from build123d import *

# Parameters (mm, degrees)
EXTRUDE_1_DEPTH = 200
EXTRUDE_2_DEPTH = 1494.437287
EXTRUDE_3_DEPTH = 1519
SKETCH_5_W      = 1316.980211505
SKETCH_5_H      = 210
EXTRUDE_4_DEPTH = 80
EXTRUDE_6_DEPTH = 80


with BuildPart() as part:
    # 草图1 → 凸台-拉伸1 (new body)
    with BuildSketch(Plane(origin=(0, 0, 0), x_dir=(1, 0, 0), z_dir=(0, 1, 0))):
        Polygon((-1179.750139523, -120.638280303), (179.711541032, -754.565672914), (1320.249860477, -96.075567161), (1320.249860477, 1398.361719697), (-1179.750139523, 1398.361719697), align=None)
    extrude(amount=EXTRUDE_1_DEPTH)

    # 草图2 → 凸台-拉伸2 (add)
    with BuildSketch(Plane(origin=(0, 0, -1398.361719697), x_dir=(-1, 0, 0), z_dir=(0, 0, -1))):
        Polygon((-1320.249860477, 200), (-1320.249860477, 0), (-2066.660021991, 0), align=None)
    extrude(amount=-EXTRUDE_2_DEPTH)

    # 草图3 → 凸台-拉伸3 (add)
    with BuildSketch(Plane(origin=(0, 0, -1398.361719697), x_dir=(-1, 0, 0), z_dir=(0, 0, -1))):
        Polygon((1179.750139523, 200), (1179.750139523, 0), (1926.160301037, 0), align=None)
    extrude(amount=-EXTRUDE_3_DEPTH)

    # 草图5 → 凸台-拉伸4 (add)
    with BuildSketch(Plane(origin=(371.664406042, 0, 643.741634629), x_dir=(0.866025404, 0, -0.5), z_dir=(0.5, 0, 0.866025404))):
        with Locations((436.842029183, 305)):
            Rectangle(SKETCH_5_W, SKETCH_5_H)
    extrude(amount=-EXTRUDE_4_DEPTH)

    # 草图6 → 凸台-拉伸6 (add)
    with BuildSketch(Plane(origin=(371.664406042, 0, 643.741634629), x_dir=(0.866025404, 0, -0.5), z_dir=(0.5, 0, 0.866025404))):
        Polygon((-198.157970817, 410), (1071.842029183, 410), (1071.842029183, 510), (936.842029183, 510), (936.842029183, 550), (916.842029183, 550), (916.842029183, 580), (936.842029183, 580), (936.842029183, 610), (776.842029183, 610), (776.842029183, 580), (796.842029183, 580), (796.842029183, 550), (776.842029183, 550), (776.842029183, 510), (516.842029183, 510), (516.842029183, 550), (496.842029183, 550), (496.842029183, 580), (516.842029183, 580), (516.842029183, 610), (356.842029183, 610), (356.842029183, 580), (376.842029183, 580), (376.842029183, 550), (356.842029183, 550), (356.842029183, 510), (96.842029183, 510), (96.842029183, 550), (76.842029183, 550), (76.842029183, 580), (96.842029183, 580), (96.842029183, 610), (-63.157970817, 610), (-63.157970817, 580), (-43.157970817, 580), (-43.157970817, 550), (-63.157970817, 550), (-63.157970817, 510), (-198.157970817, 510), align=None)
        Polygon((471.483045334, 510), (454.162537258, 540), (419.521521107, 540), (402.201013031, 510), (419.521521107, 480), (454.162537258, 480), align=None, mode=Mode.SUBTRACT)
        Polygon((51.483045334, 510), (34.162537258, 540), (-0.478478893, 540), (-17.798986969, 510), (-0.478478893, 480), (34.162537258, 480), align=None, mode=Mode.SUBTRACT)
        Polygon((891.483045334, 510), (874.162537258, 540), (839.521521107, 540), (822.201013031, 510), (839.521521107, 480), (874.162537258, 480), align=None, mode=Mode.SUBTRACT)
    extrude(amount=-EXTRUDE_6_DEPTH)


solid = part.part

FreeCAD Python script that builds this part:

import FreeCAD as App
import Part
import Sketcher
from FreeCAD import Vector
Q = App.Units.Quantity


def add_polygon(sketch, points):
    """Adds a closed chain of lines whose ends are joined by coincident constraints."""
    first, n = sketch.GeometryCount, len(points)
    for a, b in zip(points, points[1:] + points[:1]):
        sketch.addGeometry(Part.LineSegment(App.Vector(*a, 0), App.Vector(*b, 0)), False)
    for i in range(n):
        sketch.addConstraint(Sketcher.Constraint("Coincident", first + i, 2, first + (i + 1) % n, 1))

doc = App.newDocument("Part")
body = doc.addObject("PartDesign::Body", "Body")

# Sketch on XZ plane
sketch1 = body.newObject("Sketcher::SketchObject", "Sketch")
sketch1.AttachmentSupport = (doc.getObject("XZ_Plane"), [""])
sketch1.MapMode = "FlatFace"
add_polygon(sketch1, [(-1180, 121), (180, 755), (1320, 96), (1320, -1398), (-1180, -1398)])  # lines 0-4
sketch1.addConstraint([
    Sketcher.Constraint("Vertical", 2),
    Sketcher.Constraint("Horizontal", 3),
    Sketcher.Constraint("Vertical", 4),
    Sketcher.Constraint("DistanceX", 3, 2, 3, 1, 2500.0),
    Sketcher.Constraint("DistanceY", 4, 1, 4, 2, 1519.0),
    Sketcher.Constraint("Angle", 0, Q("25 deg")),
    Sketcher.Constraint("Angle", 1, Q("-30 deg")),
    Sketcher.Constraint("Distance", 0, 1500.0),
    Sketcher.Constraint("DistanceX", -1, 1, 0, 2, 179.711541),
    Sketcher.Constraint("DistanceY", 2, 2, -1, 1, 1398.36172),
])
pad1 = body.newObject("PartDesign::Pad", "Pad")
pad1.Profile = sketch1
pad1.Length = 200
pad1.Reversed = True

# Sketch on XY plane
sketch2 = body.newObject("Sketcher::SketchObject", "Sketch001")
sketch2.AttachmentSupport = (doc.getObject("XY_Plane"), [""])
sketch2.MapMode = "FlatFace"
sketch2.AttachmentOffset = App.Placement(Vector(0, 0, -1398.36172), App.Rotation())
add_polygon(sketch2, [(1320, 0), (1320, 200), (2067, 0)])  # lines 0-2
sketch2.addConstraint([
    Sketcher.Constraint("Vertical", 0),
    Sketcher.Constraint("Horizontal", 2),
    Sketcher.Constraint("PointOnObject", 1, 2, -1),
    Sketcher.Constraint("DistanceY", 0, 1, 0, 2, 200.0),
    Sketcher.Constraint("Angle", 1, Q("-15 deg")),
    Sketcher.Constraint("DistanceX", -1, 1, 0, 2, 1320.24986),
])
pad2 = body.newObject("PartDesign::Pad", "Pad001")
pad2.Profile = sketch2
pad2.Length = 1494.437287

# Sketch on XY plane
sketch3 = body.newObject("Sketcher::SketchObject", "Sketch002")
sketch3.AttachmentSupport = (doc.getObject("XY_Plane"), [""])
sketch3.MapMode = "FlatFace"
sketch3.AttachmentOffset = App.Placement(Vector(0, 0, -1398.36172), App.Rotation())
add_polygon(sketch3, [(-1180, 200), (-1180, 0), (-1926, 0)])  # lines 0-2
sketch3.addConstraint([
    Sketcher.Constraint("Vertical", 0),
    Sketcher.Constraint("Horizontal", 1),
    Sketcher.Constraint("PointOnObject", 0, 2, -1),
    Sketcher.Constraint("DistanceY", 0, 2, 0, 1, 200.0),
    Sketcher.Constraint("Angle", 2, Q("15 deg")),
    Sketcher.Constraint("DistanceX", 1, 2, -1, 1, 1926.160301),
])
pad3 = body.newObject("PartDesign::Pad", "Pad002")
pad3.Profile = sketch3
pad3.Length = 1519

# Sketch on an angled plane
sketch4 = body.newObject("Sketcher::SketchObject", "Sketch003")
sketch4.Placement = App.Placement(Vector(371.664406, 0, 643.741635), App.Rotation(Vector(0.866025404, 0, -0.5), Vector(0, 1, 0), Vector(0.5, 0, 0.866025404), "ZXY"))
add_polygon(sketch4, [(-222, 410), (-222, 200), (1095, 200), (1095, 410)])  # lines 0-3
sketch4.addConstraint([
    Sketcher.Constraint("Vertical", 0),
    Sketcher.Constraint("Horizontal", 1),
    Sketcher.Constraint("Vertical", 2),
    Sketcher.Constraint("Horizontal", 3),
    Sketcher.Constraint("DistanceY", 0, 2, 0, 1, 210.0),
    Sketcher.Constraint("DistanceY", -1, 1, 0, 2, 200.0),
    Sketcher.Constraint("DistanceX", 1, 1, 1, 2, 1316.980212),
    Sketcher.Constraint("DistanceX", 0, 2, -1, 1, 221.648077),
])
pad4 = body.newObject("PartDesign::Pad", "Pad003")
pad4.Profile = sketch4
pad4.Length = 80
pad4.Reversed = True

# Sketch on an angled plane
sketch5 = body.newObject("Sketcher::SketchObject", "Sketch004")
sketch5.Placement = App.Placement(Vector(371.664406, 0, 643.741635), App.Rotation(Vector(0.866025404, 0, -0.5), Vector(0, 1, 0), Vector(0.5, 0, 0.866025404), "ZXY"))
add_polygon(sketch5, [(-198, 410), (1072, 410), (1072, 510), (937, 510), (937, 550), (917, 550), (917, 580), (937, 580), (937, 610), (777, 610), (777, 580), (797, 580), (797, 550), (777, 550), (777, 510), (517, 510), (517, 550), (497, 550), (497, 580), (517, 580), (517, 610), (357, 610), (357, 580), (377, 580), (377, 550), (357, 550), (357, 510), (97, 510), (97, 550), (77, 550), (77, 580), (97, 580), (97, 610), (-63, 610), (-63, 580), (-43, 580), (-43, 550), (-63, 550), (-63, 510), (-198, 510)])  # lines 0-39
add_polygon(sketch5, [(34, 540), (51, 510), (34, 480), (0, 480), (-18, 510), (0, 540)])  # lines 40-45
add_polygon(sketch5, [(454, 540), (471, 510), (454, 480), (420, 480), (402, 510), (420, 540)])  # lines 46-51
add_polygon(sketch5, [(874, 540), (891, 510), (874, 480), (840, 480), (822, 510), (840, 540)])  # lines 52-57
sketch5.addConstraint([
    Sketcher.Constraint("Horizontal", 0),
    Sketcher.Constraint("Vertical", 1),
    Sketcher.Constraint("Horizontal", 2),
    Sketcher.Constraint("Vertical", 3),
    Sketcher.Constraint("Horizontal", 4),
    Sketcher.Constraint("Vertical", 5),
    Sketcher.Constraint("Horizontal", 6),
    Sketcher.Constraint("Vertical", 7),
    Sketcher.Constraint("Horizontal", 8),
    Sketcher.Constraint("Vertical", 9),
    Sketcher.Constraint("Horizontal", 10),
    Sketcher.Constraint("Vertical", 11),
    Sketcher.Constraint("Horizontal", 12),
    Sketcher.Constraint("Vertical", 13),
    Sketcher.Constraint("Horizontal", 14),
    Sketcher.Constraint("Vertical", 15),
    Sketcher.Constraint("Horizontal", 16),
    Sketcher.Constraint("Vertical", 17),
    Sketcher.Constraint("Horizontal", 18),
    Sketcher.Constraint("Vertical", 19),
    Sketcher.Constraint("Horizontal", 20),
    Sketcher.Constraint("Vertical", 21),
    Sketcher.Constraint("Horizontal", 22),
    Sketcher.Constraint("Vertical", 23),
    Sketcher.Constraint("Horizontal", 24),
    Sketcher.Constraint("Vertical", 25),
    Sketcher.Constraint("Horizontal", 26),
    Sketcher.Constraint("Vertical", 27),
    Sketcher.Constraint("Horizontal", 28),
    Sketcher.Constraint("Vertical", 29),
    Sketcher.Constraint("Horizontal", 30),
    Sketcher.Constraint("Vertical", 31),
    Sketcher.Constraint("Horizontal", 32),
    Sketcher.Constraint("Vertical", 33),
    Sketcher.Constraint("Horizontal", 34),
    Sketcher.Constraint("Vertical", 35),
    Sketcher.Constraint("Horizontal", 36),
    Sketcher.Constraint("Vertical", 37),
    Sketcher.Constraint("Horizontal", 38),
    Sketcher.Constraint("Vertical", 39),
    Sketcher.Constraint("Horizontal", 42),
    Sketcher.Constraint("Horizontal", 45),
    Sketcher.Constraint("Horizontal", 48),
    Sketcher.Constraint("Horizontal", 51),
    Sketcher.Constraint("Horizontal", 54),
    Sketcher.Constraint("Horizontal", 57),
    Sketcher.Constraint("Parallel", 40, 43),
    Sketcher.Constraint("Parallel", 41, 44),
    Sketcher.Constraint("Parallel", 43, 46),
    Sketcher.Constraint("Parallel", 44, 47),
    Sketcher.Constraint("Parallel", 46, 49),
    Sketcher.Constraint("Parallel", 47, 50),
    Sketcher.Constraint("Parallel", 49, 52),
    Sketcher.Constraint("Parallel", 50, 53),
    Sketcher.Constraint("Parallel", 52, 55),
    Sketcher.Constraint("Parallel", 53, 56),
    Sketcher.Constraint("Horizontal", 6, 2, 9, 2),
    Sketcher.Constraint("Horizontal", 4, 2, 11, 2),
    Sketcher.Constraint("Horizontal", 2, 2, 13, 2),
    Sketcher.Constraint("Horizontal", 12, 2, 15, 2),
    Sketcher.Constraint("Horizontal", 10, 2, 17, 2),
    Sketcher.Constraint("Horizontal", 8, 2, 19, 2),
    Sketcher.Constraint("Horizontal", 18, 2, 21, 2),
    Sketcher.Constraint("Horizontal", 16, 2, 23, 2),
    Sketcher.Constraint("Horizontal", 14, 2, 25, 2),
    Sketcher.Constraint("Horizontal", 24, 2, 27, 2),
    Sketcher.Constraint("Horizontal", 22, 2, 29, 2),
    Sketcher.Constraint("Horizontal", 20, 2, 31, 2),
    Sketcher.Constraint("Horizontal", 30, 2, 33, 2),
    Sketcher.Constraint("Horizontal", 28, 2, 35, 2),
    Sketcher.Constraint("Horizontal", 26, 2, 37, 2),
    Sketcher.Constraint("Horizontal", 38, 2, 40, 2),
    Sketcher.Constraint("Horizontal", 40, 2, 43, 2),
    Sketcher.Constraint("Horizontal", 43, 2, 46, 2),
    Sketcher.Constraint("Horizontal", 42, 2, 47, 2),
    Sketcher.Constraint("Horizontal", 46, 2, 49, 2),
    Sketcher.Constraint("Horizontal", 45, 2, 50, 2),
    Sketcher.Constraint("Horizontal", 49, 2, 52, 2),
    Sketcher.Constraint("Horizontal", 48, 2, 53, 2),
    Sketcher.Constraint("Horizontal", 52, 2, 55, 2),
    Sketcher.Constraint("Horizontal", 51, 2, 56, 2),
    Sketcher.Constraint("Vertical", 3, 2, 6, 2),
    Sketcher.Constraint("Vertical", 9, 2, 12, 2),
    Sketcher.Constraint("Vertical", 15, 2, 18, 2),
    Sketcher.Constraint("Vertical", 21, 2, 24, 2),
    Sketcher.Constraint("Vertical", 27, 2, 30, 2),
    Sketcher.Constraint("Vertical", 33, 2, 36, 2),
    Sketcher.Constraint("Vertical", 42, 2, 44, 2),
    Sketcher.Constraint("Vertical", 41, 2, 45, 2),
    Sketcher.Constraint("Equal", 6, 10),
    Sketcher.Constraint("Equal", 12, 16),
    Sketcher.Constraint("Equal", 8, 20),
    Sketcher.Constraint("Equal", 18, 22),
    Sketcher.Constraint("Equal", 14, 26),
    Sketcher.Constraint("Equal", 24, 28),
    Sketcher.Constraint("Equal", 20, 32),
    Sketcher.Constraint("Equal", 30, 34),
    Sketcher.Constraint("Equal", 2, 38),
    Sketcher.Constraint("Equal", 45, 48),
    Sketcher.Constraint("Equal", 51, 54),
    Sketcher.Constraint("Equal", 5, 7),
    Sketcher.Constraint("DistanceX", 0, 1, 0, 2, 1270.0),
    Sketcher.Constraint("DistanceX", 2, 2, 2, 1, 135.0),
    Sketcher.Constraint("DistanceX", 4, 2, 4, 1, 20.0),
    Sketcher.Constraint("DistanceX", 8, 2, 8, 1, 160.0),
    Sketcher.Constraint("DistanceY", 1, 1, 1, 2, 100.0),
    Sketcher.Constraint("DistanceY", 3, 1, 3, 2, 40.0),
    Sketcher.Constraint("DistanceY", 5, 1, 5, 2, 30.0),
    Sketcher.Constraint("Angle", 40, Q("-60 deg")),
    Sketcher.Constraint("DistanceY", -1, 1, 0, 2, 410.0),
    Sketcher.Constraint("DistanceY", -1, 1, 41, 2, 480.0),
    Sketcher.Constraint("DistanceX", 42, 2, 42, 1, 34.641016),
    Sketcher.Constraint("DistanceX", -1, 1, 0, 2, 1071.84203),
    Sketcher.Constraint("DistanceX", 42, 2, -1, 1, 0.478479),
    Sketcher.Constraint("DistanceX", -1, 1, 48, 2, 419.521521),
    Sketcher.Constraint("DistanceX", -1, 1, 54, 2, 839.521521),
])
pad5 = body.newObject("PartDesign::Pad", "Pad004")
pad5.Profile = sketch5
pad5.Length = 80
pad5.Reversed = True

doc.recompute()
